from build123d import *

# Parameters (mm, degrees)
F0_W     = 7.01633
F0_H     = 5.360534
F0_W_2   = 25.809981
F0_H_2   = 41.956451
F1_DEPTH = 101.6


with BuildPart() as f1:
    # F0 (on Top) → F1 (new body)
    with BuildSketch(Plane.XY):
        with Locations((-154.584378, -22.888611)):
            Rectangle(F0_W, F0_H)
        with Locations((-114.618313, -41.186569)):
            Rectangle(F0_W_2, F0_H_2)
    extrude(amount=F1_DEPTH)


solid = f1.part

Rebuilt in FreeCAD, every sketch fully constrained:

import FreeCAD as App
import Part
import Sketcher
Q = App.Units.Quantity

doc = App.newDocument("Part")
body = doc.addObject("PartDesign::Body", "Body")
body.AllowCompound = True

sketch1 = body.newObject("Sketcher::SketchObject", "Sketch")
sketch1.AttachmentSupport = (doc.getObject("XY_Plane"), [""])
sketch1.MapMode = "FlatFace"
sketch1.addGeometry(Part.LineSegment(App.Vector(-158.092543, -20.208344, 0), App.Vector(-158.092543, -25.568878, 0)), False)
sketch1.addGeometry(Part.LineSegment(App.Vector(-158.092543, -25.568878, 0), App.Vector(-151.076213, -25.568878, 0)), False)
sketch1.addGeometry(Part.LineSegment(App.Vector(-151.076213, -25.568878, 0), App.Vector(-151.076213, -20.208344, 0)), False)
sketch1.addGeometry(Part.LineSegment(App.Vector(-151.076213, -20.208344, 0), App.Vector(-158.092543, -20.208344, 0)), False)
sketch1.addGeometry(Part.LineSegment(App.Vector(-127.523303, -20.208344, 0), App.Vector(-127.523303, -62.164794, 0)), False)
sketch1.addGeometry(Part.LineSegment(App.Vector(-127.523303, -62.164794, 0), App.Vector(-101.713323, -62.164794, 0)), False)
sketch1.addGeometry(Part.LineSegment(App.Vector(-101.713323, -62.164794, 0), App.Vector(-101.713323, -20.208344, 0)), False)
sketch1.addGeometry(Part.LineSegment(App.Vector(-101.713323, -20.208344, 0), App.Vector(-127.523303, -20.208344, 0)), False)
sketch1.addConstraint(Sketcher.Constraint("Coincident", 0, 2, 1, 1))
sketch1.addConstraint(Sketcher.Constraint("Coincident", 1, 2, 2, 1))
sketch1.addConstraint(Sketcher.Constraint("Coincident", 2, 2, 3, 1))
sketch1.addConstraint(Sketcher.Constraint("Coincident", 3, 2, 0, 1))
sketch1.addConstraint(Sketcher.Constraint("Coincident", 4, 2, 5, 1))
sketch1.addConstraint(Sketcher.Constraint("Coincident", 5, 2, 6, 1))
sketch1.addConstraint(Sketcher.Constraint("Coincident", 6, 2, 7, 1))
sketch1.addConstraint(Sketcher.Constraint("Coincident", 7, 2, 4, 1))
sketch1.addConstraint(Sketcher.Constraint("Vertical", 0))
sketch1.addConstraint(Sketcher.Constraint("Horizontal", 1))
sketch1.addConstraint(Sketcher.Constraint("Vertical", 2))
sketch1.addConstraint(Sketcher.Constraint("Horizontal", 3))
sketch1.addConstraint(Sketcher.Constraint("Vertical", 4))
sketch1.addConstraint(Sketcher.Constraint("Horizontal", 5))
sketch1.addConstraint(Sketcher.Constraint("Vertical", 6))
sketch1.addConstraint(Sketcher.Constraint("Horizontal", 7))
sketch1.addConstraint(Sketcher.Constraint("Horizontal", 3, 2, 6, 2))
sketch1.addConstraint(Sketcher.Constraint("DistanceX", 1, 1, 1, 2, Q("7.01633 mm")))
sketch1.addConstraint(Sketcher.Constraint("DistanceX", 5, 1, 5, 2, Q("25.809981 mm")))
sketch1.addConstraint(Sketcher.Constraint("DistanceY", 4, 2, 4, 1, Q("41.956451 mm")))
sketch1.addConstraint(Sketcher.Constraint("DistanceY", 0, 2, 0, 1, Q("5.360534 mm")))
sketch1.addConstraint(Sketcher.Constraint("DistanceY", 0, 2, -1, 1, Q("25.568878 mm")))
sketch1.addConstraint(Sketcher.Constraint("DistanceX", 1, 2, 4, 2, Q("23.552909 mm")))
sketch1.addConstraint(Sketcher.Constraint("DistanceX", 0, 2, -1, 1, Q("158.092543 mm")))
pad1 = body.newObject("PartDesign::Pad", "Pad")
pad1.Profile = sketch1
pad1.Length = Q("4 in")

doc.recompute()
